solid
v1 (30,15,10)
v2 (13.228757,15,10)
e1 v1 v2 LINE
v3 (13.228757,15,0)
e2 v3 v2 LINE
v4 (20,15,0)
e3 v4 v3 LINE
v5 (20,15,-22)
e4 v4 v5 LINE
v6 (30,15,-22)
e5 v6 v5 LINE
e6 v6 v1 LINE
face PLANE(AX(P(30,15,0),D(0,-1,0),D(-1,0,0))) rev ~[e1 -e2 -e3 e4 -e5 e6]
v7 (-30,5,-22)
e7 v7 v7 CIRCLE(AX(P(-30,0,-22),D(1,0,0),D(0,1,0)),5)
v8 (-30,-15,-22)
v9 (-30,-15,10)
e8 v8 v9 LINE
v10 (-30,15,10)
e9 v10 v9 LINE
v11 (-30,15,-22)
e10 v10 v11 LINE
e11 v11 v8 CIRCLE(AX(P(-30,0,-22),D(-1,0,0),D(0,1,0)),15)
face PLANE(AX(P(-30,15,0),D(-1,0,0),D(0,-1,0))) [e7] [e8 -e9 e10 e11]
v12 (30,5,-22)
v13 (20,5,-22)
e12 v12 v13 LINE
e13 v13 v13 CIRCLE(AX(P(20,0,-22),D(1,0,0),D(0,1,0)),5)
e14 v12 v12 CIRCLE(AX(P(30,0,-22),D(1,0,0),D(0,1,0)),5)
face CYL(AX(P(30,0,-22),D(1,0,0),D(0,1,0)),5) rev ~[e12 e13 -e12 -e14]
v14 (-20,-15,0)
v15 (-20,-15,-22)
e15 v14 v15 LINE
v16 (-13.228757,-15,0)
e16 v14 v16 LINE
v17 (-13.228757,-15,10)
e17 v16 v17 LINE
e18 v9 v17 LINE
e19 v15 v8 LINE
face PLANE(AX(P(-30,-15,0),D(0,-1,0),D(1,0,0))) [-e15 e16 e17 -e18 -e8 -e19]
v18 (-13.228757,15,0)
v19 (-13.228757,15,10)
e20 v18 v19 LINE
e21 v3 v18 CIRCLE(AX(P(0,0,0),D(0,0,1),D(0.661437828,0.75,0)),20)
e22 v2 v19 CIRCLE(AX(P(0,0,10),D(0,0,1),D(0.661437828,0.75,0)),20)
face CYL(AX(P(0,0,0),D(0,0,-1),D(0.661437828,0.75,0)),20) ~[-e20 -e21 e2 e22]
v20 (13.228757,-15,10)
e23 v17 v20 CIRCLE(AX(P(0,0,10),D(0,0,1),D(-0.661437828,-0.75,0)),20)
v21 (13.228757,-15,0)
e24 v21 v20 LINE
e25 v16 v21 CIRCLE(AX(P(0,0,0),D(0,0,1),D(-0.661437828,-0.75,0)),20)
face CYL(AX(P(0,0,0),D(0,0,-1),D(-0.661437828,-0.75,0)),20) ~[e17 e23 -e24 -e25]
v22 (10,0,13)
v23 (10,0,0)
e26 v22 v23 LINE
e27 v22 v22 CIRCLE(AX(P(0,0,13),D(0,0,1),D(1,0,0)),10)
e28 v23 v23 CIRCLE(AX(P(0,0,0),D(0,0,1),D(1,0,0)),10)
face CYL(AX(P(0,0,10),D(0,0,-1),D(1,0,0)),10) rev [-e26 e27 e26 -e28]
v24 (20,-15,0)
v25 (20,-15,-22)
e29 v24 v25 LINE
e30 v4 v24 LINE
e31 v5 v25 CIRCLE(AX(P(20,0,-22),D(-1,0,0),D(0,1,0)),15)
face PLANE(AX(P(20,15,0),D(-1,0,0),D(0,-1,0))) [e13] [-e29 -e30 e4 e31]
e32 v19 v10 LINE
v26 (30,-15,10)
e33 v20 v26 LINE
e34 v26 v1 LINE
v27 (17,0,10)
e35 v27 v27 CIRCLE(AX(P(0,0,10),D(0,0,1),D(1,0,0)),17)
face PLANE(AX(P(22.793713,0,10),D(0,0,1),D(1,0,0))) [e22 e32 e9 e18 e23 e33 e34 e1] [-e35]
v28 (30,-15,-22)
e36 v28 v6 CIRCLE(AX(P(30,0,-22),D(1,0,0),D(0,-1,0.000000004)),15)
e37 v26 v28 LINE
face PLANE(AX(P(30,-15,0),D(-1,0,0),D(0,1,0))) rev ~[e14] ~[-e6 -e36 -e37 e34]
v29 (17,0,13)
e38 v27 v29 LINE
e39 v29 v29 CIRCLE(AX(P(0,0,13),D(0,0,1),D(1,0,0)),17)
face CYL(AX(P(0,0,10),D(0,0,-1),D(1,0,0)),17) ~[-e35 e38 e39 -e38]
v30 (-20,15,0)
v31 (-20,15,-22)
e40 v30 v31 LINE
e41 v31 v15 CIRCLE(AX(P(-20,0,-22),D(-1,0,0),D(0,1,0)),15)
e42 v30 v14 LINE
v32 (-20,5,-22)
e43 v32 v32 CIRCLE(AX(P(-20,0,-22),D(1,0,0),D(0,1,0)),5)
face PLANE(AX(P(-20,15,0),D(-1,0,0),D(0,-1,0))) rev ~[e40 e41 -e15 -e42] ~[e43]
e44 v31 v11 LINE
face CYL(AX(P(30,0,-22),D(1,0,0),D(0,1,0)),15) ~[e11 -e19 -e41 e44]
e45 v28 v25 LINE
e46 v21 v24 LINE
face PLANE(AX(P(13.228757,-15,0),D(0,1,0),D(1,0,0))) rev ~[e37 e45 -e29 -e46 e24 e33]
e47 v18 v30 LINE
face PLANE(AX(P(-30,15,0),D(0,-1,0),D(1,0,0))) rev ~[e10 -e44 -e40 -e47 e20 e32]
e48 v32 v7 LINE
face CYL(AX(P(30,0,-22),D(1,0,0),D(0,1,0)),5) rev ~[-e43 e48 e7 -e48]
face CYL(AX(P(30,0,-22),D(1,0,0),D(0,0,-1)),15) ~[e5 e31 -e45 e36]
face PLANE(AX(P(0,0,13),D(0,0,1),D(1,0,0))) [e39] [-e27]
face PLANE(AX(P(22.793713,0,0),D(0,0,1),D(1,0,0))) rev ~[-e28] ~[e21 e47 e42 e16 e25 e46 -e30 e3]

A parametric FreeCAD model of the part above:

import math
import FreeCAD as App
import Part
import Sketcher
from FreeCAD import Vector
Q = App.Units.Quantity

doc = App.newDocument("Part")
body = doc.addObject("PartDesign::Body", "Body")

# Sketch on XY plane
sketch1 = doc.addObject("Sketcher::SketchObject", "Sketch")
body.addObject(sketch1)
sketch1.AttachmentSupport = (doc.XY_Plane, [""])
sketch1.MapMode = "FlatFace"
sketch1.addGeometry([
    Part.LineSegment(Vector(30, -15, 0), Vector(30, 15, 0)),  # 0
    Part.LineSegment(Vector(30, 15, 0), Vector(13, 15, 0)),  # 1
    Part.ArcOfCircle(Part.Circle(Vector(0, 0, 0), Vector(0, 0, 1), 20), math.radians(49), math.radians(131)),  # 2
    Part.LineSegment(Vector(-13, 15, 0), Vector(-30, 15, 0)),  # 3
    Part.LineSegment(Vector(-30, 15, 0), Vector(-30, -15, 0)),  # 4
    Part.LineSegment(Vector(-30, -15, 0), Vector(-13, -15, 0)),  # 5
    Part.ArcOfCircle(Part.Circle(Vector(0, 0, 0), Vector(0, 0, 1), 20), math.radians(-131), math.radians(-49)),  # 6
    Part.LineSegment(Vector(13, -15, 0), Vector(30, -15, 0)),  # 7
    Part.Circle(Vector(0, 0, 0), Vector(0, 0, 1), 10),  # 8
], False)
sketch1.addConstraint([
    Sketcher.Constraint("Coincident", 0, 2, 1, 1),
    Sketcher.Constraint("Coincident", 1, 2, 2, 1),
    Sketcher.Constraint("Coincident", 2, 2, 3, 1),
    Sketcher.Constraint("Coincident", 3, 2, 4, 1),
    Sketcher.Constraint("Coincident", 4, 2, 5, 1),
    Sketcher.Constraint("Coincident", 5, 2, 6, 1),
    Sketcher.Constraint("Coincident", 6, 2, 7, 1),
    Sketcher.Constraint("Coincident", 7, 2, 0, 1),
    Sketcher.Constraint("Vertical", 0),
    Sketcher.Constraint("Horizontal", 1),
    Sketcher.Constraint("Horizontal", 3),
    Sketcher.Constraint("Vertical", 4),
    Sketcher.Constraint("Horizontal", 5),
    Sketcher.Constraint("Horizontal", 7),
    Sketcher.Constraint("Coincident", 2, 3, -1, 1),
    Sketcher.Constraint("Coincident", 6, 3, -1, 1),
    Sketcher.Constraint("Coincident", 8, 3, -1, 1),
    Sketcher.Constraint("Equal", 2, 6),
    Sketcher.Constraint("Symmetric", 0, 2, 4, 2, -1, 1),
    Sketcher.Constraint("Horizontal", 1, 2, 2, 2),
    Sketcher.Constraint("Horizontal", 5, 2, 6, 2),
    Sketcher.Constraint("Diameter", 8, Q("20 mm")),
    Sketcher.Constraint("Radius", 2, Q("20 mm")),
    Sketcher.Constraint("DistanceY", 0, 1, 0, 2, Q("30 mm")),
    Sketcher.Constraint("DistanceX", -1, 1, 0, 2, Q("30 mm")),
])
pad1 = doc.addObject("PartDesign::Pad", "Pad")
body.addObject(pad1)
pad1.Profile = sketch1
pad1.Length = 10

# Sketch on XY plane
sketch2 = doc.addObject("Sketcher::SketchObject", "Sketch001")
body.addObject(sketch2)
sketch2.AttachmentSupport = (doc.XY_Plane, [""])
sketch2.MapMode = "FlatFace"
sketch2.AttachmentOffset = App.Placement(Vector(0, 0, 10), App.Rotation())
sketch2.addGeometry([
    Part.Circle(Vector(0, 0, 0), Vector(0, 0, 1), 17),
    Part.Circle(Vector(0, 0, 0), Vector(0, 0, 1), 10),
], False)
sketch2.addConstraint([
    Sketcher.Constraint("Coincident", 0, 3, -1, 1),
    Sketcher.Constraint("Coincident", 1, 3, -1, 1),
    Sketcher.Constraint("Diameter", 0, Q("34 mm")),
    Sketcher.Constraint("Diameter", 1, Q("20 mm")),
])
pad2 = doc.addObject("PartDesign::Pad", "Pad001")
body.addObject(pad2)
pad2.Profile = sketch2
pad2.Length = 3

# Sketch on XY plane
sketch3 = doc.addObject("Sketcher::SketchObject", "Sketch002")
body.addObject(sketch3)
sketch3.AttachmentSupport = (doc.XY_Plane, [""])
sketch3.MapMode = "FlatFace"
sketch3.addGeometry([
    Part.LineSegment(Vector(-30, -15, 0), Vector(-30, 15, 0)),  # 0
    Part.LineSegment(Vector(-30, 15, 0), Vector(-20, 15, 0)),  # 1
    Part.LineSegment(Vector(-20, 15, 0), Vector(-20, -15, 0)),  # 2
    Part.LineSegment(Vector(-20, -15, 0), Vector(-30, -15, 0)),  # 3
    Part.LineSegment(Vector(20, -15, 0), Vector(20, 15, 0)),  # 4
    Part.LineSegment(Vector(20, 15, 0), Vector(30, 15, 0)),  # 5
    Part.LineSegment(Vector(30, 15, 0), Vector(30, -15, 0)),  # 6
    Part.LineSegment(Vector(30, -15, 0), Vector(20, -15, 0)),  # 7
], False)
sketch3.addConstraint([
    Sketcher.Constraint("Coincident", 0, 2, 1, 1),
    Sketcher.Constraint("Coincident", 1, 2, 2, 1),
    Sketcher.Constraint("Coincident", 2, 2, 3, 1),
    Sketcher.Constraint("Coincident", 3, 2, 0, 1),
    Sketcher.Constraint("Coincident", 4, 2, 5, 1),
    Sketcher.Constraint("Coincident", 5, 2, 6, 1),
    Sketcher.Constraint("Coincident", 6, 2, 7, 1),
    Sketcher.Constraint("Coincident", 7, 2, 4, 1),
    Sketcher.Constraint("Vertical", 0),
    Sketcher.Constraint("Horizontal", 1),
    Sketcher.Constraint("Vertical", 2),
    Sketcher.Constraint("Horizontal", 3),
    Sketcher.Constraint("Vertical", 4),
    Sketcher.Constraint("Horizontal", 5),
    Sketcher.Constraint("Vertical", 6),
    Sketcher.Constraint("Horizontal", 7),
    Sketcher.Constraint("Symmetric", 2, 2, 4, 2, -1, 1),
    Sketcher.Constraint("Symmetric", 0, 2, 6, 2, -1, 1),
    Sketcher.Constraint("Horizontal", 1, 2, 4, 2),
    Sketcher.Constraint("DistanceX", 1, 1, 1, 2, Q("10 mm")),
    Sketcher.Constraint("DistanceY", 0, 1, 0, 2, Q("30 mm")),
    Sketcher.Constraint("DistanceX", 0, 2, -1, 1, Q("30 mm")),
])
pad3 = doc.addObject("PartDesign::Pad", "Pad002")
body.addObject(pad3)
pad3.Profile = sketch3
pad3.Length = 37
pad3.Reversed = True

# Sketch on YZ plane
sketch4 = doc.addObject("Sketcher::SketchObject", "Sketch003")
body.addObject(sketch4)
sketch4.AttachmentSupport = (doc.YZ_Plane, [""])
sketch4.MapMode = "FlatFace"
sketch4.AttachmentOffset = App.Placement(Vector(0, 0, 30), App.Rotation())
sketch4.addGeometry([
    Part.ArcOfCircle(Part.Circle(Vector(0, -22, 0), Vector(0, 0, 1), 15), math.radians(180), math.radians(270)),  # 0
    Part.LineSegment(Vector(-15, -22, 0), Vector(-15, -37, 0)),  # 1
    Part.LineSegment(Vector(-15, -37, 0), Vector(0, -37, 0)),  # 2
    Part.LineSegment(Vector(15, -37, 0), Vector(15, -22, 0)),  # 3
    Part.ArcOfCircle(Part.Circle(Vector(0, -22, 0), Vector(0, 0, 1), 15), math.radians(-90), math.radians(0)),  # 4
    Part.LineSegment(Vector(0, -37, 0), Vector(15, -37, 0)),  # 5
    Part.Circle(Vector(0, -22, 0), Vector(0, 0, 1), 5),  # 6
], False)
sketch4.addConstraint([
    Sketcher.Constraint("Tangent", 0, 1, 1, 1),
    Sketcher.Constraint("Coincident", 1, 2, 2, 1),
    Sketcher.Constraint("Tangent", 2, 2, 0, 2),
    Sketcher.Constraint("Tangent", 3, 2, 4, 2),
    Sketcher.Constraint("Tangent", 4, 1, 5, 1),
    Sketcher.Constraint("Coincident", 5, 2, 3, 1),
    Sketcher.Constraint("Vertical", 1),
    Sketcher.Constraint("Horizontal", 2),
    Sketcher.Constraint("Vertical", 3),
    Sketcher.Constraint("Horizontal", 5),
    Sketcher.Constraint("Coincident", 4, 3, 0, 3),
    Sketcher.Constraint("Coincident", 6, 3, 0, 3),
    Sketcher.Constraint("Equal", 0, 4),
    Sketcher.Constraint("PointOnObject", 0, 3, -2),
    Sketcher.Constraint("Diameter", 6, Q("10 mm")),
    Sketcher.Constraint("Radius", 0, Q("15 mm")),
    Sketcher.Constraint("DistanceY", 0, 3, -1, 1, Q("22 mm")),
])
pocket1 = doc.addObject("PartDesign::Pocket", "Pocket")
body.addObject(pocket1)
pocket1.Profile = sketch4
pocket1.Type = "ThroughAll"

doc.recompute()
